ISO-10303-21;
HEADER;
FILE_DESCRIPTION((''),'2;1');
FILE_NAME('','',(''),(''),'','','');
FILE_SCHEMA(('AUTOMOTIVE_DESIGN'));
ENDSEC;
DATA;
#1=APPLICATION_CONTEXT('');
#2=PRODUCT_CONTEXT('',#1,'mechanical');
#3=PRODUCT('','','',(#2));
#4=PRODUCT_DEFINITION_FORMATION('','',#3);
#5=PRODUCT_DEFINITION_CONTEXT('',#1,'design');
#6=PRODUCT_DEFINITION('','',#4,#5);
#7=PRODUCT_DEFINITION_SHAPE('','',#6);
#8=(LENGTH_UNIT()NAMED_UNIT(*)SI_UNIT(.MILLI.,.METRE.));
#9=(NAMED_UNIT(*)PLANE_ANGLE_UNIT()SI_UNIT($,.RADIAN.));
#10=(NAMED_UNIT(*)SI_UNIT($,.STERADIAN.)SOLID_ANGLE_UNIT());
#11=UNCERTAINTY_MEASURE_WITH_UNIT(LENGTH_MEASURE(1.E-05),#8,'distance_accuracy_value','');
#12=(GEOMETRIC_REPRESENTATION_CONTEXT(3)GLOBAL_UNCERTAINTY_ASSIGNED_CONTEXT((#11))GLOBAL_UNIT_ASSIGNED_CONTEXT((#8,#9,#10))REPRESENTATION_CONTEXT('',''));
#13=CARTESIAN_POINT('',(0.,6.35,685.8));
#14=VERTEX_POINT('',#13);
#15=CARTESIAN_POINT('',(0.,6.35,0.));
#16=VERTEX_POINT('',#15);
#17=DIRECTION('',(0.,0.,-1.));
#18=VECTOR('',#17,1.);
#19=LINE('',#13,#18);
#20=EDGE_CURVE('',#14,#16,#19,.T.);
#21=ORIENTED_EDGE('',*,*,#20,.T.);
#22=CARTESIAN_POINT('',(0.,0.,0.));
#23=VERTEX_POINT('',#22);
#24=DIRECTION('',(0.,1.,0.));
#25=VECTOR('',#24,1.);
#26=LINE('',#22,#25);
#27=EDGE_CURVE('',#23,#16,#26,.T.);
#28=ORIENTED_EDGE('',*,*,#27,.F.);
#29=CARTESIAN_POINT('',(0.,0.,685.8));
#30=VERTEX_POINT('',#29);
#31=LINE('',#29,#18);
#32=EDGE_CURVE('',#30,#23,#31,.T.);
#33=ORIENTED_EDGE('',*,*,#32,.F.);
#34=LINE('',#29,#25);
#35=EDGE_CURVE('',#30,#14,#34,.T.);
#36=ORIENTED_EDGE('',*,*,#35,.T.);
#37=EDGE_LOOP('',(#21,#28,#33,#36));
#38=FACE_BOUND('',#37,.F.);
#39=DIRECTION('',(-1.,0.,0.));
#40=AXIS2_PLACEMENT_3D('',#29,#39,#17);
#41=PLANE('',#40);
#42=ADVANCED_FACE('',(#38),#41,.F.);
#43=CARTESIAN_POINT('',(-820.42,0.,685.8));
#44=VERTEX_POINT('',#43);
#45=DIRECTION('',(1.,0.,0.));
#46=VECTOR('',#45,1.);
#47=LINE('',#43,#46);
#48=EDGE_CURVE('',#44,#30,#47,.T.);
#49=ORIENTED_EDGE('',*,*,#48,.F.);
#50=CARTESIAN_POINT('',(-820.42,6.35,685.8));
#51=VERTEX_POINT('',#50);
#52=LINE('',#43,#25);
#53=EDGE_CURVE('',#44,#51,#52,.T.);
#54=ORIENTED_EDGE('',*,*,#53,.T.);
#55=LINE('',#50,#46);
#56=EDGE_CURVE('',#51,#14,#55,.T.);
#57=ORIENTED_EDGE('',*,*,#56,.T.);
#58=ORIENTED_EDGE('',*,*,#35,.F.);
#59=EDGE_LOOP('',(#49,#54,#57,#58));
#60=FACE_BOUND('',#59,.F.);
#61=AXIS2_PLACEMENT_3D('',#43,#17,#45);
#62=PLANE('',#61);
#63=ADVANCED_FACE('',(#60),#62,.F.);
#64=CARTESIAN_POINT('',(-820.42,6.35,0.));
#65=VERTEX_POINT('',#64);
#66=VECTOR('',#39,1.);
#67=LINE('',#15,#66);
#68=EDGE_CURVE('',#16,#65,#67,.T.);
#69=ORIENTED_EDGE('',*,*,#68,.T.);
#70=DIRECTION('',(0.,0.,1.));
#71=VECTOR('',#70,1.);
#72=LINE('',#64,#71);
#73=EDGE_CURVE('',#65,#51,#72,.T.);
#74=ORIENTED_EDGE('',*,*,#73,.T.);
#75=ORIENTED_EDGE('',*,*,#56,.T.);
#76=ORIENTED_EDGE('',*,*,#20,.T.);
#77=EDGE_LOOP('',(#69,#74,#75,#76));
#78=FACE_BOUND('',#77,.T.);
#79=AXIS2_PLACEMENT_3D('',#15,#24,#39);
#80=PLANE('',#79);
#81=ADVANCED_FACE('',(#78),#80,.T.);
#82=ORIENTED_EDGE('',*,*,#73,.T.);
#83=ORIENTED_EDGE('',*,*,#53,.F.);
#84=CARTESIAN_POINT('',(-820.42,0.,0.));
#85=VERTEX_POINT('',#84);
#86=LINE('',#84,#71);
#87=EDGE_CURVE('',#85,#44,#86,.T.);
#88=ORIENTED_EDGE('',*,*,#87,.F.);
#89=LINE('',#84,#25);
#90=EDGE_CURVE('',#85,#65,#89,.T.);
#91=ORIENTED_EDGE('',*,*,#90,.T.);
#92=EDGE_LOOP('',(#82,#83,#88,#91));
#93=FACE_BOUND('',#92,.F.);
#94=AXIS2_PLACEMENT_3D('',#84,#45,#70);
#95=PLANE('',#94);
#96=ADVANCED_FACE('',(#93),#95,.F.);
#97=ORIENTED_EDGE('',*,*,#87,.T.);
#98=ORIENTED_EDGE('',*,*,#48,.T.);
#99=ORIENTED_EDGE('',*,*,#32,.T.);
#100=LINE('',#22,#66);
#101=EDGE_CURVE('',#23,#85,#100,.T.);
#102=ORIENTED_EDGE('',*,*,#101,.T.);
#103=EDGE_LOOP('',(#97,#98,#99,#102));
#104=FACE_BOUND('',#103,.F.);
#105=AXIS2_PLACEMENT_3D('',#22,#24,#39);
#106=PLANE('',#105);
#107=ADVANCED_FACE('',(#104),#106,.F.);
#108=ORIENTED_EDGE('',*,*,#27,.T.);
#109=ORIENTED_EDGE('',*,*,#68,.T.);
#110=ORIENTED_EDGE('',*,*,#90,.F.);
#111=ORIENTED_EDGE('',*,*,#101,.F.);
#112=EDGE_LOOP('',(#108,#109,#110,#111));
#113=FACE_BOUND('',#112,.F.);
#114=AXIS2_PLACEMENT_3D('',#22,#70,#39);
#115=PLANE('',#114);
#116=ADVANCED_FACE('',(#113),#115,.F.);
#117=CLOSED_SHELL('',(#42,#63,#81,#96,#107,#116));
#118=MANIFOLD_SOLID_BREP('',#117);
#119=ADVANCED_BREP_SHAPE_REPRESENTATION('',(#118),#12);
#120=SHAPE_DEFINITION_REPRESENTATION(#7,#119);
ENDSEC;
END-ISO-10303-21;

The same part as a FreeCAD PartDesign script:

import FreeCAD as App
import Part
import Sketcher
Q = App.Units.Quantity

doc = App.newDocument("Part")
body = doc.addObject("PartDesign::Body", "Body")

# Sketch on XZ plane
sketch1 = body.newObject("Sketcher::SketchObject", "Sketch")
sketch1.AttachmentSupport = (doc.getObject("XZ_Plane"), [""])
sketch1.MapMode = "FlatFace"
sketch1.addGeometry([
    Part.LineSegment(App.Vector(0, 686, 0), App.Vector(0, 0, 0)),
    Part.LineSegment(App.Vector(0, 0, 0), App.Vector(-820, 0, 0)),
    Part.LineSegment(App.Vector(-820, 0, 0), App.Vector(-820, 686, 0)),
    Part.LineSegment(App.Vector(-820, 686, 0), App.Vector(0, 686, 0)),
], False)
sketch1.addConstraint([
    Sketcher.Constraint("Coincident", 0, 2, 1, 1),
    Sketcher.Constraint("Coincident", 1, 2, 2, 1),
    Sketcher.Constraint("Coincident", 2, 2, 3, 1),
    Sketcher.Constraint("Coincident", 3, 2, 0, 1),
    Sketcher.Constraint("Vertical", 0),
    Sketcher.Constraint("Horizontal", 1),
    Sketcher.Constraint("Vertical", 2),
    Sketcher.Constraint("Horizontal", 3),
    Sketcher.Constraint("Coincident", 0, 2, -1, 1),
    Sketcher.Constraint("DistanceY", 0, 2, 0, 1, Q("27 in")),
    Sketcher.Constraint("DistanceX", 1, 2, 1, 1, Q("32.3 in")),
])
pad1 = body.newObject("PartDesign::Pad", "Pad")
pad1.Profile = sketch1
pad1.Length = Q("0.25 in")
pad1.Reversed = True

doc.recompute()
